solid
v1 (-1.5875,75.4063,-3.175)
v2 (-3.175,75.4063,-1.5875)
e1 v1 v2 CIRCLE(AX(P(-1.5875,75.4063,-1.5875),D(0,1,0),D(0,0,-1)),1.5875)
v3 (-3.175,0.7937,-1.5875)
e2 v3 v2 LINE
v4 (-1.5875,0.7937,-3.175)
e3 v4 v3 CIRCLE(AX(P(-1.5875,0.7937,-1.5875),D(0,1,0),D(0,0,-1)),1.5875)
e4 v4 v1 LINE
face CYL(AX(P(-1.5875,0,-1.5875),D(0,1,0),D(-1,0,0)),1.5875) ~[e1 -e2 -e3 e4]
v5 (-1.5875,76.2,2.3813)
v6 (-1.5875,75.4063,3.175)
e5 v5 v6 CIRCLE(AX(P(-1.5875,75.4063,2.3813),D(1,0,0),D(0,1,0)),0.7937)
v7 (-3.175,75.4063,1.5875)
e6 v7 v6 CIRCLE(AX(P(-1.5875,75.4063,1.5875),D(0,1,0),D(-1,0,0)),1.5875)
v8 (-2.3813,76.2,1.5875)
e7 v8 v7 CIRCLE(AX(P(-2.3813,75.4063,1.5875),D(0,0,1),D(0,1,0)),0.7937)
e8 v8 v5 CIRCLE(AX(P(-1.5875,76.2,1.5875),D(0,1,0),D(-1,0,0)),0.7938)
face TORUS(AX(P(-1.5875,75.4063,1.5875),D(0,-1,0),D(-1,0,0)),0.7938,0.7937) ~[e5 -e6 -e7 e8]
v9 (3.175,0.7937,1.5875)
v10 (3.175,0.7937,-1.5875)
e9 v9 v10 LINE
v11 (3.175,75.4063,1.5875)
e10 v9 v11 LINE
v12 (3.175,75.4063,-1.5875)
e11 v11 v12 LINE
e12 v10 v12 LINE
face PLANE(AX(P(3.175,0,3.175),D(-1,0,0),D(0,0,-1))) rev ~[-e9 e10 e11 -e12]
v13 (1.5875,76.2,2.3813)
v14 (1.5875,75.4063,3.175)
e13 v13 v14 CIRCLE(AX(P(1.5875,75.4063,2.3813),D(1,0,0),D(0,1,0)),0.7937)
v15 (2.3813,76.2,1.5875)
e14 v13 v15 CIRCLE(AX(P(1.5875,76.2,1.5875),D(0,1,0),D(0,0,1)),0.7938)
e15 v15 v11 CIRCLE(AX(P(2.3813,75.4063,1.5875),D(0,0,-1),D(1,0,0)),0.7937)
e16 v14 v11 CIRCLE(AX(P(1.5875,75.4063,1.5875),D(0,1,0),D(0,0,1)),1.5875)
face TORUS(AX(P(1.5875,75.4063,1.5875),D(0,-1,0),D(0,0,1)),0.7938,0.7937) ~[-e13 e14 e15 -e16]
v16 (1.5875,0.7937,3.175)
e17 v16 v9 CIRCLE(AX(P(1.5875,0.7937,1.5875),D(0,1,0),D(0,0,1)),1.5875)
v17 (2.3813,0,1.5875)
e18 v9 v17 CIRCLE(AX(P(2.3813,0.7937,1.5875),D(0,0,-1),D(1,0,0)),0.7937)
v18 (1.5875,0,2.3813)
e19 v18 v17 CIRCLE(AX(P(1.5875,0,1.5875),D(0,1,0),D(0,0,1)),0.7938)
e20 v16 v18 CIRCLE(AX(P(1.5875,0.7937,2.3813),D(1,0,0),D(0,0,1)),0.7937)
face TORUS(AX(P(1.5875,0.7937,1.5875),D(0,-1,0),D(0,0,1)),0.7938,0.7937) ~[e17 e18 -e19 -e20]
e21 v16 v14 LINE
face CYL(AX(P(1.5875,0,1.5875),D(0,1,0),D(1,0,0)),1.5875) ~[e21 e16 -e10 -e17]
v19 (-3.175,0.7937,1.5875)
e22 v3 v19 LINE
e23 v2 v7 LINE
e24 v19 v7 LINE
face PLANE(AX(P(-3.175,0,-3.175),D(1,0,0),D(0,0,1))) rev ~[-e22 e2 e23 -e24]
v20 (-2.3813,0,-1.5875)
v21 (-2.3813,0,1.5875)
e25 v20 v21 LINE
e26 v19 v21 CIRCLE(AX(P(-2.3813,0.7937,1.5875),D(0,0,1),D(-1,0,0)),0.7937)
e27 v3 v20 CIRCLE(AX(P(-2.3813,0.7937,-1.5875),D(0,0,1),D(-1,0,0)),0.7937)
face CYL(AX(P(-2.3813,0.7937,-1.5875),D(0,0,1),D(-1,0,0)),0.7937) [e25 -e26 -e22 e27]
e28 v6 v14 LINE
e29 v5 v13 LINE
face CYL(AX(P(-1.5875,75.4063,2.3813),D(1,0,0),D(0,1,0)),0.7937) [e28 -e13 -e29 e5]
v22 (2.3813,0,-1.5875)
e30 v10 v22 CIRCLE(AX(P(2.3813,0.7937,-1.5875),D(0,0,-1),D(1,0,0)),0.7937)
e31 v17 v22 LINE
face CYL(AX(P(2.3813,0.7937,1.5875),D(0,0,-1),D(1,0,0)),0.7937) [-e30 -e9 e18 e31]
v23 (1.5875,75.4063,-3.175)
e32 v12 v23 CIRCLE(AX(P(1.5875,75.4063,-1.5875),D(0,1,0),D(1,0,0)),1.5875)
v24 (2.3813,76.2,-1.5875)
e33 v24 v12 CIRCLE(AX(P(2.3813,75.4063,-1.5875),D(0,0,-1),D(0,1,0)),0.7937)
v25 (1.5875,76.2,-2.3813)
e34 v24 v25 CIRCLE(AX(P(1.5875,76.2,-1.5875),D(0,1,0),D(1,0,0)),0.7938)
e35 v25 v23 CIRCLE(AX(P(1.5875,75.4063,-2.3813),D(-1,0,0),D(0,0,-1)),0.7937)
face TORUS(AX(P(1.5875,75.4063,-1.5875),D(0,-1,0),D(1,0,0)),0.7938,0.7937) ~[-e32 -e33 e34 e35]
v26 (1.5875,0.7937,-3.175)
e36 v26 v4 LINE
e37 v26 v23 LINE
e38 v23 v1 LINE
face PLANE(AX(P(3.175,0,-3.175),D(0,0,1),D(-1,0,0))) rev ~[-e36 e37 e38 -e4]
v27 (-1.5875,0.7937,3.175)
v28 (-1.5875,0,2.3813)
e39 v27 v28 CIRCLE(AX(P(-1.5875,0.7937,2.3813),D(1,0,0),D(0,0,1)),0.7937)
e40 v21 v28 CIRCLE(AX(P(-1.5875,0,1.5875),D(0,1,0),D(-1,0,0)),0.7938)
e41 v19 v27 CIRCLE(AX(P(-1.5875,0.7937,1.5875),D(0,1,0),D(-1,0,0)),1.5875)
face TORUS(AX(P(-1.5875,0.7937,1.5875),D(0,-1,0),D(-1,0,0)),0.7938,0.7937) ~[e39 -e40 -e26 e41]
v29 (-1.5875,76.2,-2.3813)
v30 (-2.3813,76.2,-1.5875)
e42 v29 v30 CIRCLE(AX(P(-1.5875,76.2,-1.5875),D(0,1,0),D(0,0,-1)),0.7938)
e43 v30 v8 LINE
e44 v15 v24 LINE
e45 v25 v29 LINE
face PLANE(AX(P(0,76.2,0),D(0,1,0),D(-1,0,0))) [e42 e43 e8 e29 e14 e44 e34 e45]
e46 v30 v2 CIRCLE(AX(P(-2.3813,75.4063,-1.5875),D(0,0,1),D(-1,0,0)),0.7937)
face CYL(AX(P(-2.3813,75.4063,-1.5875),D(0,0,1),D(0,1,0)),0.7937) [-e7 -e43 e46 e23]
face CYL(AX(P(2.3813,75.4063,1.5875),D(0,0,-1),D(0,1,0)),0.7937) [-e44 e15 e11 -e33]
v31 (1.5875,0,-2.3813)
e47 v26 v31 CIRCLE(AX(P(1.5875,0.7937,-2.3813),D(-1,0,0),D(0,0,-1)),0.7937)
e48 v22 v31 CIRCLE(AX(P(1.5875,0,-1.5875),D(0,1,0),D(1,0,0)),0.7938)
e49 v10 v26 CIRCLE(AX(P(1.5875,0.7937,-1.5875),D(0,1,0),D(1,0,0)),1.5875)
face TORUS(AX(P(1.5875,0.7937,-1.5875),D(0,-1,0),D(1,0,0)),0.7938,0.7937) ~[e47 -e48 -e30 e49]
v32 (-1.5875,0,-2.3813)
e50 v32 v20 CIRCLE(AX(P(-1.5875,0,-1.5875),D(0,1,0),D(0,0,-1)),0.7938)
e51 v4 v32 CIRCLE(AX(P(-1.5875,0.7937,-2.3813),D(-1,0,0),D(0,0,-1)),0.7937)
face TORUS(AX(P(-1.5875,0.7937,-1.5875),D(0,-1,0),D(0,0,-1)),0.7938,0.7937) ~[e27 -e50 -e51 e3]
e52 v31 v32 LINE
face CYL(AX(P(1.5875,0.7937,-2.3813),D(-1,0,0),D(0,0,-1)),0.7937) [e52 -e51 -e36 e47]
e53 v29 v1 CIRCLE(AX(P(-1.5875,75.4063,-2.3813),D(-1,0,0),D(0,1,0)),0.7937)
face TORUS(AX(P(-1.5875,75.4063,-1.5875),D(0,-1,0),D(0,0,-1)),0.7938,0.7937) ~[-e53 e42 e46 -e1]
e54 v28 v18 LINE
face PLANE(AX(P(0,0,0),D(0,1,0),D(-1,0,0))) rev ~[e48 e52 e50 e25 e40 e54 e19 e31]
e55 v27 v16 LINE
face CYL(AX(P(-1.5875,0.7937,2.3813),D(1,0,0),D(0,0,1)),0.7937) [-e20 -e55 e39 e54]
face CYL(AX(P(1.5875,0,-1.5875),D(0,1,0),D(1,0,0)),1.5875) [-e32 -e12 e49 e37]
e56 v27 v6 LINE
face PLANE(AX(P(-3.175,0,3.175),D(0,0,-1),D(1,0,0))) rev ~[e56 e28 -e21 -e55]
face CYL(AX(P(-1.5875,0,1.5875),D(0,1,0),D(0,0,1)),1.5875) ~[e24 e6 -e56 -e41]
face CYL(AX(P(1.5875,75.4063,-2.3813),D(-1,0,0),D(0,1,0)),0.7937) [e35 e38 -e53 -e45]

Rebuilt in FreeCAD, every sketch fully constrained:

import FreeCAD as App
import Part
import Sketcher
Q = App.Units.Quantity


def edges_at(feature, points):
    """Names of the edges that pass closest to the given points."""
    edges = feature.Shape.Edges
    near = lambda p: min(range(len(edges)), key=lambda i: edges[i].distToShape(Part.Vertex(*p))[0])
    return sorted({f"Edge{near(p) + 1}" for p in points})


def add_polygon(sketch, points):
    """Adds a closed chain of lines whose ends are joined by coincident constraints."""
    first, n = sketch.GeometryCount, len(points)
    for a, b in zip(points, points[1:] + points[:1]):
        sketch.addGeometry(Part.LineSegment(App.Vector(*a, 0), App.Vector(*b, 0)), False)
    for i in range(n):
        sketch.addConstraint(Sketcher.Constraint("Coincident", first + i, 2, first + (i + 1) % n, 1))

doc = App.newDocument("Part")
body = doc.addObject("PartDesign::Body", "Body")

# Sketch on XZ plane
sketch1 = doc.addObject("Sketcher::SketchObject", "Sketch")
body.addObject(sketch1)
sketch1.AttachmentSupport = (doc.XZ_Plane, [""])
sketch1.MapMode = "FlatFace"
add_polygon(sketch1, [(3, 3), (3, -3), (-3, -3), (-3, 3)])  # lines 0-3
sketch1.addConstraint([
    Sketcher.Constraint("Vertical", 0),
    Sketcher.Constraint("Horizontal", 1),
    Sketcher.Constraint("Vertical", 2),
    Sketcher.Constraint("Horizontal", 3),
    Sketcher.Constraint("Symmetric", 0, 2, 2, 2, -1, 1),
    Sketcher.Constraint("Equal", 3, 0),
    Sketcher.Constraint("DistanceX", 1, 2, 1, 1, Q("0.25 in")),
])
pad1 = doc.addObject("PartDesign::Pad", "Pad")
body.addObject(pad1)
pad1.Profile = sketch1
pad1.Length = Q("3 in")
pad1.Reversed = True
doc.recompute()

fillet = doc.addObject("PartDesign::Fillet", "Fillet")
body.addObject(fillet)
fillet.Base = (pad1, edges_at(pad1, [
    (3.175, 38.1, -3.175),
    (-3.175, 38.1, -3.175),
    (3.175, 38.1, 3.175),
    (-3.175, 38.1, 3.175),
]))
fillet.Radius = Q("0.0625 in")
doc.recompute()

fillet2 = doc.addObject("PartDesign::Fillet", "Fillet001")
body.addObject(fillet2)
fillet2.Base = (fillet, edges_at(fillet, [
    (3.175, 0, 0),
    (2.71, 0, -2.71),
    (0, 0, -3.175),
    (-2.71, 0, -2.71),
    (-3.175, 0, 0),
    (-2.71, 0, 2.71),
    (0, 0, 3.175),
    (2.71, 0, 2.71),
    (0, 76.2, 3.175),
    (-2.71, 76.2, 2.71),
    (-3.175, 76.2, 0),
    (-2.71, 76.2, -2.71),
    (0, 76.2, -3.175),
    (2.71, 76.2, -2.71),
    (3.175, 76.2, 0),
    (2.71, 76.2, 2.71),
]))
fillet2.Radius = Q("0.031248 in")

doc.recompute()
